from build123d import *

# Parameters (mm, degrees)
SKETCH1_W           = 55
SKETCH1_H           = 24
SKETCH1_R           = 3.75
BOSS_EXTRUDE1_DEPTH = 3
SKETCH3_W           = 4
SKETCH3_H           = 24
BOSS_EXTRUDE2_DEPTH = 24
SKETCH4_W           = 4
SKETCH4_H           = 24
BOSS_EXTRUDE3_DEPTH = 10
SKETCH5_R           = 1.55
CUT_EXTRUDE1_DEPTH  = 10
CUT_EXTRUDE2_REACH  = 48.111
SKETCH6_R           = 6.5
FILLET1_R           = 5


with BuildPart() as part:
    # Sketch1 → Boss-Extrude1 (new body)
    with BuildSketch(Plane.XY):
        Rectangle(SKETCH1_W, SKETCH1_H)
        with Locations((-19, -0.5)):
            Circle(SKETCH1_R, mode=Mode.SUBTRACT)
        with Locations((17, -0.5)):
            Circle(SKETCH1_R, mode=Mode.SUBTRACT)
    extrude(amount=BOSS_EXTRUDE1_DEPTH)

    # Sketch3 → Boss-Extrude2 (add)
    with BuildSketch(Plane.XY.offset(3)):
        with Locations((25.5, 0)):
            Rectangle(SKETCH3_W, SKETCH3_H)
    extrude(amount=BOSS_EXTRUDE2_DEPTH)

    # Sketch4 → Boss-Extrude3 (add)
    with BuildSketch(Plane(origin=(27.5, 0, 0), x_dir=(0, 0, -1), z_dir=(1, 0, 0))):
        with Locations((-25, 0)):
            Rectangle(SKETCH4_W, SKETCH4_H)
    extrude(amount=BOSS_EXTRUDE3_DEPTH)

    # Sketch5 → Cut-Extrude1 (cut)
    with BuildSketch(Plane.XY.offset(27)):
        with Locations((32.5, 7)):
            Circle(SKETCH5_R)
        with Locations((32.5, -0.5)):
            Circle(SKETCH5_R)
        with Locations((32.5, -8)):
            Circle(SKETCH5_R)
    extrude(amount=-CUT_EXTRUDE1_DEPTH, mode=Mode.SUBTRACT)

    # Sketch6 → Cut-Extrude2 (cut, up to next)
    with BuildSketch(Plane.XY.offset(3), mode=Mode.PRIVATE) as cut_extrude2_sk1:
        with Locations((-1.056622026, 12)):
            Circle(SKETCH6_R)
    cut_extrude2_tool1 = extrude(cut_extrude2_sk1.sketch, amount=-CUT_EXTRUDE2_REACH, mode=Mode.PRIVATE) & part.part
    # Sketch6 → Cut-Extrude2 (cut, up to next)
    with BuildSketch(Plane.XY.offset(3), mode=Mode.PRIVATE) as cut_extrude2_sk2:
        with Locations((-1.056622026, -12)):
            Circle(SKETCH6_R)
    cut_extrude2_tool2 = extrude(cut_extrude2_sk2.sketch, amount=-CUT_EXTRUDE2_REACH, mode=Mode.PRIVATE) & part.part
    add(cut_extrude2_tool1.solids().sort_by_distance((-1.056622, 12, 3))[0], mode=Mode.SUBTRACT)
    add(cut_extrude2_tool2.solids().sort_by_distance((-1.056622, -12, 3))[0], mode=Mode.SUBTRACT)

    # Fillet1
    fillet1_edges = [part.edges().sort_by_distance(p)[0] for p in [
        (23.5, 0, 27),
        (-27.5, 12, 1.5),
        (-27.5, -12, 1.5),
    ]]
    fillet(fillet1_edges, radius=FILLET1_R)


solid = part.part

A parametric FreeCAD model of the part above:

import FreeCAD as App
import Part
import Sketcher
Q = App.Units.Quantity


def edges_at(feature, points):
    """Names of the edges that pass closest to the given points."""
    edges = feature.Shape.Edges
    near = lambda p: min(range(len(edges)), key=lambda i: edges[i].distToShape(Part.Vertex(*p))[0])
    return sorted({f"Edge{near(p) + 1}" for p in points})


def add_polygon(sketch, points):
    """Adds a closed chain of lines whose ends are joined by coincident constraints."""
    first, n = sketch.GeometryCount, len(points)
    for a, b in zip(points, points[1:] + points[:1]):
        sketch.addGeometry(Part.LineSegment(App.Vector(*a, 0), App.Vector(*b, 0)), False)
    for i in range(n):
        sketch.addConstraint(Sketcher.Constraint("Coincident", first + i, 2, first + (i + 1) % n, 1))

doc = App.newDocument("Part")
body = doc.addObject("PartDesign::Body", "Body")

# Sketch on XY plane
sketch1 = doc.addObject("Sketcher::SketchObject", "Sketch")
body.addObject(sketch1)
sketch1.AttachmentSupport = (doc.XY_Plane, [""])
sketch1.MapMode = "FlatFace"
add_polygon(sketch1, [(-27.5, 12), (-27.5, -12), (27.5, -12), (27.5, 12)])  # lines 0-3
sketch1.addGeometry(Part.Circle(App.Vector(-19, -0.5, 0), App.Vector(0, 0, 1), 3.8), False)  # 4
sketch1.addGeometry(Part.Circle(App.Vector(17, -0.5, 0), App.Vector(0, 0, 1), 3.8), False)  # 5
sketch1.addConstraint([
    Sketcher.Constraint("Vertical", 0),
    Sketcher.Constraint("Horizontal", 1),
    Sketcher.Constraint("Vertical", 2),
    Sketcher.Constraint("Horizontal", 3),
    Sketcher.Constraint("Equal", 4, 5),
    Sketcher.Constraint("Symmetric", 0, 2, 2, 2, -1, 1),
    Sketcher.Constraint("Horizontal", 4, 3, 5, 3),
    Sketcher.Constraint("Diameter", 4, Q("7.5 mm")),
    Sketcher.Constraint("DistanceX", 1, 1, 1, 2, Q("55 mm")),
    Sketcher.Constraint("DistanceY", 0, 2, 0, 1, Q("24 mm")),
    Sketcher.Constraint("DistanceX", 4, 3, -1, 1, Q("19 mm")),
    Sketcher.Constraint("DistanceX", -1, 1, 5, 3, Q("17 mm")),
    Sketcher.Constraint("DistanceY", 4, 3, -1, 1, Q("0.5 mm")),
])
pad1 = doc.addObject("PartDesign::Pad", "Pad")
body.addObject(pad1)
pad1.Profile = sketch1
pad1.Length = 3

# Sketch on XY plane
sketch2 = doc.addObject("Sketcher::SketchObject", "Sketch001")
body.addObject(sketch2)
sketch2.AttachmentSupport = (doc.XY_Plane, [""])
sketch2.MapMode = "FlatFace"
sketch2.AttachmentOffset = App.Placement(App.Vector(0, 0, 3), App.Rotation())
add_polygon(sketch2, [(23.5, 12), (23.5, -12), (27.5, -12), (27.5, 12)])  # lines 0-3
sketch2.addConstraint([
    Sketcher.Constraint("Vertical", 0),
    Sketcher.Constraint("Horizontal", 1),
    Sketcher.Constraint("Vertical", 2),
    Sketcher.Constraint("Horizontal", 3),
    Sketcher.Constraint("DistanceX", 1, 1, 1, 2, Q("4 mm")),
    Sketcher.Constraint("DistanceY", 0, 2, 0, 1, Q("24 mm")),
    Sketcher.Constraint("DistanceY", 0, 2, -1, 1, Q("12 mm")),
    Sketcher.Constraint("DistanceX", -1, 1, 0, 2, Q("23.5 mm")),
])
pad2 = doc.addObject("PartDesign::Pad", "Pad001")
body.addObject(pad2)
pad2.Profile = sketch2
pad2.Length = 24

# Sketch on YZ plane
sketch3 = doc.addObject("Sketcher::SketchObject", "Sketch002")
body.addObject(sketch3)
sketch3.AttachmentSupport = (doc.YZ_Plane, [""])
sketch3.MapMode = "FlatFace"
sketch3.AttachmentOffset = App.Placement(App.Vector(0, 0, 27.5), App.Rotation())
add_polygon(sketch3, [(12, 27), (-12, 27), (-12, 23), (12, 23)])  # lines 0-3
sketch3.addConstraint([
    Sketcher.Constraint("Horizontal", 0),
    Sketcher.Constraint("Vertical", 1),
    Sketcher.Constraint("Horizontal", 2),
    Sketcher.Constraint("Vertical", 3),
    Sketcher.Constraint("DistanceX", 0, 2, 0, 1, Q("24 mm")),
    Sketcher.Constraint("DistanceY", 1, 2, 1, 1, Q("4 mm")),
    Sketcher.Constraint("DistanceX", 0, 2, -1, 1, Q("12 mm")),
    Sketcher.Constraint("DistanceY", -1, 1, 0, 2, Q("27 mm")),
])
pad3 = doc.addObject("PartDesign::Pad", "Pad002")
body.addObject(pad3)
pad3.Profile = sketch3
pad3.Length = 10

# Sketch on XY plane
sketch4 = doc.addObject("Sketcher::SketchObject", "Sketch003")
body.addObject(sketch4)
sketch4.AttachmentSupport = (doc.XY_Plane, [""])
sketch4.MapMode = "FlatFace"
sketch4.AttachmentOffset = App.Placement(App.Vector(0, 0, 27), App.Rotation())
sketch4.addGeometry([
    Part.Circle(App.Vector(32.5, 7, 0), App.Vector(0, 0, 1), 1.6),
    Part.Circle(App.Vector(32.5, -0.5, 0), App.Vector(0, 0, 1), 1.6),
    Part.Circle(App.Vector(32.5, -8, 0), App.Vector(0, 0, 1), 1.6),
], False)
sketch4.addConstraint([
    Sketcher.Constraint("Equal", 0, 1),
    Sketcher.Constraint("Equal", 1, 2),
    Sketcher.Constraint("Vertical", 0, 3, 1, 3),
    Sketcher.Constraint("Vertical", 1, 3, 2, 3),
    Sketcher.Constraint("Diameter", 0, Q("3.1 mm")),
    Sketcher.Constraint("DistanceY", -1, 1, 0, 3, Q("7 mm")),
    Sketcher.Constraint("DistanceY", 2, 3, -1, 1, Q("8 mm")),
    Sketcher.Constraint("DistanceX", -1, 1, 0, 3, Q("32.5 mm")),
    Sketcher.Constraint("DistanceY", 1, 3, -1, 1, Q("0.5 mm")),
])
pocket1 = doc.addObject("PartDesign::Pocket", "Pocket")
body.addObject(pocket1)
pocket1.Profile = sketch4
pocket1.Length = 10

# Sketch on XY plane
sketch5 = doc.addObject("Sketcher::SketchObject", "Sketch004")
body.addObject(sketch5)
sketch5.AttachmentSupport = (doc.XY_Plane, [""])
sketch5.MapMode = "FlatFace"
sketch5.AttachmentOffset = App.Placement(App.Vector(0, 0, 3), App.Rotation())
sketch5.addGeometry(Part.Circle(App.Vector(-1, 12, 0), App.Vector(0, 0, 1), 6), False)
sketch5.addConstraint([
    Sketcher.Constraint("Diameter", 0, Q("13 mm")),
    Sketcher.Constraint("DistanceY", -1, 1, 0, 3, Q("12 mm")),
    Sketcher.Constraint("DistanceX", 0, 3, -1, 1, Q("1.056622 mm")),
])
pocket2 = doc.addObject("PartDesign::Pocket", "Pocket001")
body.addObject(pocket2)
pocket2.Profile = sketch5
pocket2.Type = "UpToFirst"

# Sketch on XY plane
sketch6 = doc.addObject("Sketcher::SketchObject", "Sketch005")
body.addObject(sketch6)
sketch6.AttachmentSupport = (doc.XY_Plane, [""])
sketch6.MapMode = "FlatFace"
sketch6.AttachmentOffset = App.Placement(App.Vector(0, 0, 3), App.Rotation())
sketch6.addGeometry(Part.Circle(App.Vector(-1, -12, 0), App.Vector(0, 0, 1), 6), False)
sketch6.addConstraint([
    Sketcher.Constraint("Diameter", 0, Q("13 mm")),
    Sketcher.Constraint("DistanceY", 0, 3, -1, 1, Q("12 mm")),
    Sketcher.Constraint("DistanceX", 0, 3, -1, 1, Q("1.056622 mm")),
])
pocket3 = doc.addObject("PartDesign::Pocket", "Pocket002")
body.addObject(pocket3)
pocket3.Profile = sketch6
pocket3.Type = "UpToFirst"
doc.recompute()

fillet = doc.addObject("PartDesign::Fillet", "Fillet")
body.addObject(fillet)
fillet.Base = (pocket3, edges_at(pocket3, [(23.5, 0, 27), (-27.5, 12, 1.5), (-27.5, -12, 1.5)]))
fillet.Radius = 5

doc.recompute()
